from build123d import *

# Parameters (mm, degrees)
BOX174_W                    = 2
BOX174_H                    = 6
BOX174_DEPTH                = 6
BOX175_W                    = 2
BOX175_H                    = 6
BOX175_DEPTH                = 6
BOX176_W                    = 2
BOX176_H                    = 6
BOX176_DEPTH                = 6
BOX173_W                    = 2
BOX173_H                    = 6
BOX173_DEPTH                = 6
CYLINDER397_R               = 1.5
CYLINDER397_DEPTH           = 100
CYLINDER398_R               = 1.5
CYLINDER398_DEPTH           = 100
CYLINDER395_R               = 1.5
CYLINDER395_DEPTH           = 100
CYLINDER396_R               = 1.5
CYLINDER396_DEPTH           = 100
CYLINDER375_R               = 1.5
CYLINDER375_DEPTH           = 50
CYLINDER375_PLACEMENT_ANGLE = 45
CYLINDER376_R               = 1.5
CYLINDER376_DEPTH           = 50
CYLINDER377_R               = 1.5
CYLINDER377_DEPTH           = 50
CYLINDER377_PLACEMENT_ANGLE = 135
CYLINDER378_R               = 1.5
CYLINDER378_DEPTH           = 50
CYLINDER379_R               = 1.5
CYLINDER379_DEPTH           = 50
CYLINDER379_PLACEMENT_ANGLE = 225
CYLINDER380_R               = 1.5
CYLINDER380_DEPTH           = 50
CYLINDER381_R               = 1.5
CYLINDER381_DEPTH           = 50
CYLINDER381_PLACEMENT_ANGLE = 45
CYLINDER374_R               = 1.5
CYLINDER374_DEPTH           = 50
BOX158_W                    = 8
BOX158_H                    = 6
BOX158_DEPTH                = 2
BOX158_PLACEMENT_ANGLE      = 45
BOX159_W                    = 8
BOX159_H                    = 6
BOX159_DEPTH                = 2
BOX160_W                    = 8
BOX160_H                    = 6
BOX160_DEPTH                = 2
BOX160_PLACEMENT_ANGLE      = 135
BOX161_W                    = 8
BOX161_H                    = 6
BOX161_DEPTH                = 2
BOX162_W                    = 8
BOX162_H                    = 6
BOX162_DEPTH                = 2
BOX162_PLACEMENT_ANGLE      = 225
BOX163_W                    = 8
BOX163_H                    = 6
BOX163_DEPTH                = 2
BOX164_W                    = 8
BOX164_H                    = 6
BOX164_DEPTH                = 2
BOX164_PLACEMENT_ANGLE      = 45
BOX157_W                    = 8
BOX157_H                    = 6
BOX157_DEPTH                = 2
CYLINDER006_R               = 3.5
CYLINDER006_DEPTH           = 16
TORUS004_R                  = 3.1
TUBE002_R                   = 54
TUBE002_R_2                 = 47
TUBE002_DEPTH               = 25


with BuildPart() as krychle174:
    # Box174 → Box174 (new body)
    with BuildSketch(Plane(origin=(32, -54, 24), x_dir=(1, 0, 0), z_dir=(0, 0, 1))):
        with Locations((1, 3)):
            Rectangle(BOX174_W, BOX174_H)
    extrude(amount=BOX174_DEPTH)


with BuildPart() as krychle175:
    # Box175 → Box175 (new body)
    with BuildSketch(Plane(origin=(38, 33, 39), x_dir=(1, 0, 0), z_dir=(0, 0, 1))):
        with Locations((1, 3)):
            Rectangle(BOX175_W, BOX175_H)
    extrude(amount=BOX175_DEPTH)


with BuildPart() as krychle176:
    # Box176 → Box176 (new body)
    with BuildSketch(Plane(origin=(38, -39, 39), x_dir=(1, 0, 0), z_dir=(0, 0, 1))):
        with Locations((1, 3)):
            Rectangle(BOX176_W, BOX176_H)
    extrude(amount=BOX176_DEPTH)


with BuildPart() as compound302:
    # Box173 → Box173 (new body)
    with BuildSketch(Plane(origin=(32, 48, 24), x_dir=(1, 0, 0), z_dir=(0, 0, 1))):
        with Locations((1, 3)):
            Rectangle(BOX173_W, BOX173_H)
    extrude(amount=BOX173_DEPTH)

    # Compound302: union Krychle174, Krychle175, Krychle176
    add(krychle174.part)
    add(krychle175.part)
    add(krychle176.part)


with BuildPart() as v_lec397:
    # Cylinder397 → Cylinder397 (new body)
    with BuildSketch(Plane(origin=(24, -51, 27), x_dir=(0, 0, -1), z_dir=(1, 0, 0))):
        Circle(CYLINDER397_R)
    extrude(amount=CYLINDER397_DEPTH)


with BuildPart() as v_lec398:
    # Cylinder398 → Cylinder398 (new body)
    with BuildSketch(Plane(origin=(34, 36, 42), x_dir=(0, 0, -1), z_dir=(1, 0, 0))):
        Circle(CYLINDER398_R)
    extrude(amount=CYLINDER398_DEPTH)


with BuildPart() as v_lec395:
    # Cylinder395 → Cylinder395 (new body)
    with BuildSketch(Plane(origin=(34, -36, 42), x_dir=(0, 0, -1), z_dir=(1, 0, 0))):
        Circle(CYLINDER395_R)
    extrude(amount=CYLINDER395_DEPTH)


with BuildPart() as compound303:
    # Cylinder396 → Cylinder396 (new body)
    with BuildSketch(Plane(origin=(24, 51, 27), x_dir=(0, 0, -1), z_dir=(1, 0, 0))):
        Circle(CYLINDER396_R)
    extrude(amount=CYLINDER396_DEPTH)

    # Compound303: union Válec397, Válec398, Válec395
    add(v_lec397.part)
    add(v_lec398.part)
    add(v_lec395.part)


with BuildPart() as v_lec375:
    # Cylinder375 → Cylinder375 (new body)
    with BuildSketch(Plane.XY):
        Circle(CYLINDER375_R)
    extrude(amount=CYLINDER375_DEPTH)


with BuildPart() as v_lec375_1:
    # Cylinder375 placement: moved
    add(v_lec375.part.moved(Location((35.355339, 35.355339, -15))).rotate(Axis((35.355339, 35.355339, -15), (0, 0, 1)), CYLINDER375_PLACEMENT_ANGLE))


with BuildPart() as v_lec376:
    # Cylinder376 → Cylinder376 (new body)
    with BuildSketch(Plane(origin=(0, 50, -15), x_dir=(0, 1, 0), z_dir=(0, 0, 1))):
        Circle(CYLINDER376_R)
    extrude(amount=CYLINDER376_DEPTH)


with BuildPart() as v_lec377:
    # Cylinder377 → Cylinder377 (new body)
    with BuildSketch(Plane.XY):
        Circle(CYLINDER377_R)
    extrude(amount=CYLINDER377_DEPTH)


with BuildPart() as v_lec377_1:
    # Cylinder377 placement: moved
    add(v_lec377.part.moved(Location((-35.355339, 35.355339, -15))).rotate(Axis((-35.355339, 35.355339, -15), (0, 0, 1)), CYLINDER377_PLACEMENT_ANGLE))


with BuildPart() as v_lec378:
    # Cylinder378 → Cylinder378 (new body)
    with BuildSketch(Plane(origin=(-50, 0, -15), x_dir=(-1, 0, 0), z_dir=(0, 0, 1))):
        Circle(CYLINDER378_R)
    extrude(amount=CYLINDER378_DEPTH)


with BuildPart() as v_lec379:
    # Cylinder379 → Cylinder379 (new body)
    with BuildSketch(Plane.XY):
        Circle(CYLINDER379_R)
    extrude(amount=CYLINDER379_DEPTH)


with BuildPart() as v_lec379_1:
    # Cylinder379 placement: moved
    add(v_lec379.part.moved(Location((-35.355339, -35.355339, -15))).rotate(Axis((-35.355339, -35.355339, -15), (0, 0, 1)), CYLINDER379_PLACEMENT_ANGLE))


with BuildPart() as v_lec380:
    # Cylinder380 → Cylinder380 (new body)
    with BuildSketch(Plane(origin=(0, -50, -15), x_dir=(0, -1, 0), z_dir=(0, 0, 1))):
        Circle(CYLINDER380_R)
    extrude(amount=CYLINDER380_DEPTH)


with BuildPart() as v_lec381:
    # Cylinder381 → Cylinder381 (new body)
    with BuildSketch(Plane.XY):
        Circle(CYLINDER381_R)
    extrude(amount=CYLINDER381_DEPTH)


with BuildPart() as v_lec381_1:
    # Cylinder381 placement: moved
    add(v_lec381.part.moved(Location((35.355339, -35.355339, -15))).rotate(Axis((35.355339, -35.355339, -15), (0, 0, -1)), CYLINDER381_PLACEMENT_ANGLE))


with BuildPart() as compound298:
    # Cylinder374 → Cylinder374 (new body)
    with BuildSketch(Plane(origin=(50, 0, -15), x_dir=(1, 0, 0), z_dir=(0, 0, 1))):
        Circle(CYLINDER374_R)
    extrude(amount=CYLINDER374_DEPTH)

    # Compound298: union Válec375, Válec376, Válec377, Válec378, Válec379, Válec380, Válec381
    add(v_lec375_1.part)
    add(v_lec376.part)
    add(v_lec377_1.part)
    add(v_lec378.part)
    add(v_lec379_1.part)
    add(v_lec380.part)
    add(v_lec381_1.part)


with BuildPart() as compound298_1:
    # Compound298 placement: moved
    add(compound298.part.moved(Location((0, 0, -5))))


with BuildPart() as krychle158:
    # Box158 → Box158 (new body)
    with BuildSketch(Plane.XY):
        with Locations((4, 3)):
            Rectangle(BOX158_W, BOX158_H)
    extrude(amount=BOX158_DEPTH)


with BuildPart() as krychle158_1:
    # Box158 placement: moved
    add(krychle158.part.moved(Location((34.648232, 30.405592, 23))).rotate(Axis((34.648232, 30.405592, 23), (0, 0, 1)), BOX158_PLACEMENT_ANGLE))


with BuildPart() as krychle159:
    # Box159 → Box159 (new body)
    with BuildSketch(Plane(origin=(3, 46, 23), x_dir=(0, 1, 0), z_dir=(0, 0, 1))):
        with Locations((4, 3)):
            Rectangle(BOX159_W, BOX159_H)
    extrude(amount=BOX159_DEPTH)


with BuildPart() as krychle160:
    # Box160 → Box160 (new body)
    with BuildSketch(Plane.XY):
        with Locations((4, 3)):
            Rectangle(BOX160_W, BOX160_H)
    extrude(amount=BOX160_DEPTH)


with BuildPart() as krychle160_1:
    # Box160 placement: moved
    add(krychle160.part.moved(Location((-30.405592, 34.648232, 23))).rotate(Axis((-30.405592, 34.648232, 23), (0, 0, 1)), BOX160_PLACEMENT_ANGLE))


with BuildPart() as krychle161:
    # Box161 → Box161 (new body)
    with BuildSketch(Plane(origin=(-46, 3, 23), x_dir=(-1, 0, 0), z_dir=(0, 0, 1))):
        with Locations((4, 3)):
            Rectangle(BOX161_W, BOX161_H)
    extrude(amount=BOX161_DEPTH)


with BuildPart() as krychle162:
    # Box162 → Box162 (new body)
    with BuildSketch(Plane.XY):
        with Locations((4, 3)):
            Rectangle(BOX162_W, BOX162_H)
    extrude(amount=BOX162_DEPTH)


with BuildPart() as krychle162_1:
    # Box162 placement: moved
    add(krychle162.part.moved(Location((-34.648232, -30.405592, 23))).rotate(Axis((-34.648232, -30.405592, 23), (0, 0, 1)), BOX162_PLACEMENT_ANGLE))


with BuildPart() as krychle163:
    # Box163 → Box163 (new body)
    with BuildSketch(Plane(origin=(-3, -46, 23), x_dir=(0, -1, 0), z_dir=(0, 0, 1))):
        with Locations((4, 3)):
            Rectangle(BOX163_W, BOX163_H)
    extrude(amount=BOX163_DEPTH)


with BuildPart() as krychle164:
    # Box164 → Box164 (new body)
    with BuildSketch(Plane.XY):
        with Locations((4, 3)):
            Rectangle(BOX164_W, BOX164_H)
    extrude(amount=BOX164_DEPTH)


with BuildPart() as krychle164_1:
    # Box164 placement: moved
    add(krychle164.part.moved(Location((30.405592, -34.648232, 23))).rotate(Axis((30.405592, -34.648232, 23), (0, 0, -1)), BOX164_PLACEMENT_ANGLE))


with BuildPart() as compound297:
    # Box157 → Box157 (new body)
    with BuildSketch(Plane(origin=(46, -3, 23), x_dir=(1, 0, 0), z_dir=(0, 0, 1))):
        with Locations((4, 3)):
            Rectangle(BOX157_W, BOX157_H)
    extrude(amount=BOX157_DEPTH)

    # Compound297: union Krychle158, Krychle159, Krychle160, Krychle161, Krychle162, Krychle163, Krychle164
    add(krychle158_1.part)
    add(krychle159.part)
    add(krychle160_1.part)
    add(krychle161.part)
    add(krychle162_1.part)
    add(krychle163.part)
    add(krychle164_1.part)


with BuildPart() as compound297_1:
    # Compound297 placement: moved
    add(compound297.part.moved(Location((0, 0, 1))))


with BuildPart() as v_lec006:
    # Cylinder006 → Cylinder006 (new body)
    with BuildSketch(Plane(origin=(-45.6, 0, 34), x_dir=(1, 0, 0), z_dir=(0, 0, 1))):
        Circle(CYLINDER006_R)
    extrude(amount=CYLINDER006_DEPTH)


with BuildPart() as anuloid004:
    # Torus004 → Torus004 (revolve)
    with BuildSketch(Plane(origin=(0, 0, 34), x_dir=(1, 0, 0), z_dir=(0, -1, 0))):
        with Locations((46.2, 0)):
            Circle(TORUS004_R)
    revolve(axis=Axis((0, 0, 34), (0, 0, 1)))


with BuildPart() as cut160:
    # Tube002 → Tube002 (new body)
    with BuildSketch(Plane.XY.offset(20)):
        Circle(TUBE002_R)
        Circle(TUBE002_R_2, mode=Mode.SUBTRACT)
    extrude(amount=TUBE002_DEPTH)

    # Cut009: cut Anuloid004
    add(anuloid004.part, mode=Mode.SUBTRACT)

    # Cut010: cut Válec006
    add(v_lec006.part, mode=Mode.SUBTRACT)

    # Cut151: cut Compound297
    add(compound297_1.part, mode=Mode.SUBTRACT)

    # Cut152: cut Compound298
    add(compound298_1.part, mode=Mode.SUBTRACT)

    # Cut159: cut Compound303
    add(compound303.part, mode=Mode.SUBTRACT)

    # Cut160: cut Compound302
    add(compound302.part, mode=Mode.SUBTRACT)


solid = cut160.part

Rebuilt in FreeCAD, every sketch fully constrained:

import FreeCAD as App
import Part
import Sketcher

V = App.Vector
Q = App.Units.Quantity

doc = App.newDocument("Part")
body = doc.addObject("PartDesign::Body", "Body")

sketch1 = body.newObject("Sketcher::SketchObject", "Sketch")
sketch1.AttachmentSupport = (doc.getObject("XY_Plane"), [""])
sketch1.MapMode = "FlatFace"
sketch1.AttachmentOffset = App.Placement(V(0, 0, 24), App.Rotation())
sketch1.addGeometry(Part.LineSegment(V(32, -48, 0), V(32, -54, 0)), False)
sketch1.addGeometry(Part.LineSegment(V(32, -54, 0), V(34, -54, 0)), False)
sketch1.addGeometry(Part.LineSegment(V(34, -54, 0), V(34, -48, 0)), False)
sketch1.addGeometry(Part.LineSegment(V(34, -48, 0), V(32, -48, 0)), False)
sketch1.addConstraint(Sketcher.Constraint("Coincident", 0, 2, 1, 1))
sketch1.addConstraint(Sketcher.Constraint("Coincident", 1, 2, 2, 1))
sketch1.addConstraint(Sketcher.Constraint("Coincident", 2, 2, 3, 1))
sketch1.addConstraint(Sketcher.Constraint("Coincident", 3, 2, 0, 1))
sketch1.addConstraint(Sketcher.Constraint("Vertical", 0))
sketch1.addConstraint(Sketcher.Constraint("Horizontal", 1))
sketch1.addConstraint(Sketcher.Constraint("Vertical", 2))
sketch1.addConstraint(Sketcher.Constraint("Horizontal", 3))
sketch1.addConstraint(Sketcher.Constraint("DistanceX", 1, 1, 1, 2, Q("2 mm")))
sketch1.addConstraint(Sketcher.Constraint("DistanceY", 0, 2, 0, 1, Q("6 mm")))
sketch1.addConstraint(Sketcher.Constraint("DistanceX", -1, 1, 0, 2, Q("32 mm")))
sketch1.addConstraint(Sketcher.Constraint("DistanceY", 0, 2, -1, 1, Q("54 mm")))
pad1 = body.newObject("PartDesign::Pad", "Pad")
pad1.Profile = sketch1
pad1.Length = 6
body2 = doc.addObject("PartDesign::Body", "Body001")

sketch2 = body2.newObject("Sketcher::SketchObject", "Sketch001")
sketch2.AttachmentSupport = (doc.getObject("XY_Plane001"), [""])
sketch2.MapMode = "FlatFace"
sketch2.AttachmentOffset = App.Placement(V(0, 0, 39), App.Rotation())
sketch2.addGeometry(Part.LineSegment(V(38, 39, 0), V(38, 33, 0)), False)
sketch2.addGeometry(Part.LineSegment(V(38, 33, 0), V(40, 33, 0)), False)
sketch2.addGeometry(Part.LineSegment(V(40, 33, 0), V(40, 39, 0)), False)
sketch2.addGeometry(Part.LineSegment(V(40, 39, 0), V(38, 39, 0)), False)
sketch2.addConstraint(Sketcher.Constraint("Coincident", 0, 2, 1, 1))
sketch2.addConstraint(Sketcher.Constraint("Coincident", 1, 2, 2, 1))
sketch2.addConstraint(Sketcher.Constraint("Coincident", 2, 2, 3, 1))
sketch2.addConstraint(Sketcher.Constraint("Coincident", 3, 2, 0, 1))
sketch2.addConstraint(Sketcher.Constraint("Vertical", 0))
sketch2.addConstraint(Sketcher.Constraint("Horizontal", 1))
sketch2.addConstraint(Sketcher.Constraint("Vertical", 2))
sketch2.addConstraint(Sketcher.Constraint("Horizontal", 3))
sketch2.addConstraint(Sketcher.Constraint("DistanceX", 1, 1, 1, 2, Q("2 mm")))
sketch2.addConstraint(Sketcher.Constraint("DistanceY", 0, 2, 0, 1, Q("6 mm")))
sketch2.addConstraint(Sketcher.Constraint("DistanceX", -1, 1, 0, 2, Q("38 mm")))
sketch2.addConstraint(Sketcher.Constraint("DistanceY", -1, 1, 0, 2, Q("33 mm")))
pad2 = body2.newObject("PartDesign::Pad", "Pad001")
pad2.Profile = sketch2
pad2.Length = 6
body3 = doc.addObject("PartDesign::Body", "Body002")

sketch3 = body3.newObject("Sketcher::SketchObject", "Sketch002")
sketch3.AttachmentSupport = (doc.getObject("XY_Plane002"), [""])
sketch3.MapMode = "FlatFace"
sketch3.AttachmentOffset = App.Placement(V(0, 0, 39), App.Rotation())
sketch3.addGeometry(Part.LineSegment(V(38, -33, 0), V(38, -39, 0)), False)
sketch3.addGeometry(Part.LineSegment(V(38, -39, 0), V(40, -39, 0)), False)
sketch3.addGeometry(Part.LineSegment(V(40, -39, 0), V(40, -33, 0)), False)
sketch3.addGeometry(Part.LineSegment(V(40, -33, 0), V(38, -33, 0)), False)
sketch3.addConstraint(Sketcher.Constraint("Coincident", 0, 2, 1, 1))
sketch3.addConstraint(Sketcher.Constraint("Coincident", 1, 2, 2, 1))
sketch3.addConstraint(Sketcher.Constraint("Coincident", 2, 2, 3, 1))
sketch3.addConstraint(Sketcher.Constraint("Coincident", 3, 2, 0, 1))
sketch3.addConstraint(Sketcher.Constraint("Vertical", 0))
sketch3.addConstraint(Sketcher.Constraint("Horizontal", 1))
sketch3.addConstraint(Sketcher.Constraint("Vertical", 2))
sketch3.addConstraint(Sketcher.Constraint("Horizontal", 3))
sketch3.addConstraint(Sketcher.Constraint("DistanceX", 1, 1, 1, 2, Q("2 mm")))
sketch3.addConstraint(Sketcher.Constraint("DistanceY", 0, 2, 0, 1, Q("6 mm")))
sketch3.addConstraint(Sketcher.Constraint("DistanceX", -1, 1, 0, 2, Q("38 mm")))
sketch3.addConstraint(Sketcher.Constraint("DistanceY", 0, 2, -1, 1, Q("39 mm")))
pad3 = body3.newObject("PartDesign::Pad", "Pad002")
pad3.Profile = sketch3
pad3.Length = 6
body4 = doc.addObject("PartDesign::Body", "Body003")
body4.AllowCompound = True

sketch4 = body4.newObject("Sketcher::SketchObject", "Sketch003")
sketch4.AttachmentSupport = (doc.getObject("XY_Plane003"), [""])
sketch4.MapMode = "FlatFace"
sketch4.AttachmentOffset = App.Placement(V(0, 0, 24), App.Rotation())
sketch4.addGeometry(Part.LineSegment(V(32, 54, 0), V(32, 48, 0)), False)
sketch4.addGeometry(Part.LineSegment(V(32, 48, 0), V(34, 48, 0)), False)
sketch4.addGeometry(Part.LineSegment(V(34, 48, 0), V(34, 54, 0)), False)
sketch4.addGeometry(Part.LineSegment(V(34, 54, 0), V(32, 54, 0)), False)
sketch4.addConstraint(Sketcher.Constraint("Coincident", 0, 2, 1, 1))
sketch4.addConstraint(Sketcher.Constraint("Coincident", 1, 2, 2, 1))
sketch4.addConstraint(Sketcher.Constraint("Coincident", 2, 2, 3, 1))
sketch4.addConstraint(Sketcher.Constraint("Coincident", 3, 2, 0, 1))
sketch4.addConstraint(Sketcher.Constraint("Vertical", 0))
sketch4.addConstraint(Sketcher.Constraint("Horizontal", 1))
sketch4.addConstraint(Sketcher.Constraint("Vertical", 2))
sketch4.addConstraint(Sketcher.Constraint("Horizontal", 3))
sketch4.addConstraint(Sketcher.Constraint("DistanceX", 1, 1, 1, 2, Q("2 mm")))
sketch4.addConstraint(Sketcher.Constraint("DistanceY", 0, 2, 0, 1, Q("6 mm")))
sketch4.addConstraint(Sketcher.Constraint("DistanceX", -1, 1, 0, 2, Q("32 mm")))
sketch4.addConstraint(Sketcher.Constraint("DistanceY", -1, 1, 0, 2, Q("48 mm")))
pad4 = body4.newObject("PartDesign::Pad", "Pad003")
pad4.Profile = sketch4
pad4.Length = 6
doc.recompute()

boolean = body4.newObject("PartDesign::Boolean", "Boolean")
boolean.Type = "Fuse"
boolean.addObjects([body])
doc.recompute()

boolean2 = body4.newObject("PartDesign::Boolean", "Boolean001")
boolean2.Type = "Fuse"
boolean2.addObjects([body2])
doc.recompute()

boolean3 = body4.newObject("PartDesign::Boolean", "Boolean002")
boolean3.Type = "Fuse"
boolean3.addObjects([body3])
body5 = doc.addObject("PartDesign::Body", "Body004")

sketch5 = body5.newObject("Sketcher::SketchObject", "Sketch004")
sketch5.AttachmentSupport = (doc.getObject("YZ_Plane004"), [""])
sketch5.MapMode = "FlatFace"
sketch5.AttachmentOffset = App.Placement(V(0, 0, 24), App.Rotation())
sketch5.addGeometry(Part.Circle(V(-51, 27, 0), V(0, 0, 1), 1.5), False)
sketch5.addConstraint(Sketcher.Constraint("Diameter", 0, Q("3 mm")))
sketch5.addConstraint(Sketcher.Constraint("DistanceX", 0, 3, -1, 1, Q("51 mm")))
sketch5.addConstraint(Sketcher.Constraint("DistanceY", -1, 1, 0, 3, Q("27 mm")))
pad5 = body5.newObject("PartDesign::Pad", "Pad004")
pad5.Profile = sketch5
pad5.Length = 100
body6 = doc.addObject("PartDesign::Body", "Body005")

sketch6 = body6.newObject("Sketcher::SketchObject", "Sketch005")
sketch6.AttachmentSupport = (doc.getObject("YZ_Plane005"), [""])
sketch6.MapMode = "FlatFace"
sketch6.AttachmentOffset = App.Placement(V(0, 0, 34), App.Rotation())
sketch6.addGeometry(Part.Circle(V(36, 42, 0), V(0, 0, 1), 1.5), False)
sketch6.addConstraint(Sketcher.Constraint("Diameter", 0, Q("3 mm")))
sketch6.addConstraint(Sketcher.Constraint("DistanceX", -1, 1, 0, 3, Q("36 mm")))
sketch6.addConstraint(Sketcher.Constraint("DistanceY", -1, 1, 0, 3, Q("42 mm")))
pad6 = body6.newObject("PartDesign::Pad", "Pad005")
pad6.Profile = sketch6
pad6.Length = 100
body7 = doc.addObject("PartDesign::Body", "Body006")

sketch7 = body7.newObject("Sketcher::SketchObject", "Sketch006")
sketch7.AttachmentSupport = (doc.getObject("YZ_Plane006"), [""])
sketch7.MapMode = "FlatFace"
sketch7.AttachmentOffset = App.Placement(V(0, 0, 34), App.Rotation())
sketch7.addGeometry(Part.Circle(V(-36, 42, 0), V(0, 0, 1), 1.5), False)
sketch7.addConstraint(Sketcher.Constraint("Diameter", 0, Q("3 mm")))
sketch7.addConstraint(Sketcher.Constraint("DistanceX", 0, 3, -1, 1, Q("36 mm")))
sketch7.addConstraint(Sketcher.Constraint("DistanceY", -1, 1, 0, 3, Q("42 mm")))
pad7 = body7.newObject("PartDesign::Pad", "Pad006")
pad7.Profile = sketch7
pad7.Length = 100
body8 = doc.addObject("PartDesign::Body", "Body007")
body8.AllowCompound = True

sketch8 = body8.newObject("Sketcher::SketchObject", "Sketch007")
sketch8.AttachmentSupport = (doc.getObject("YZ_Plane007"), [""])
sketch8.MapMode = "FlatFace"
sketch8.AttachmentOffset = App.Placement(V(0, 0, 24), App.Rotation())
sketch8.addGeometry(Part.Circle(V(51, 27, 0), V(0, 0, 1), 1.5), False)
sketch8.addConstraint(Sketcher.Constraint("Diameter", 0, Q("3 mm")))
sketch8.addConstraint(Sketcher.Constraint("DistanceX", -1, 1, 0, 3, Q("51 mm")))
sketch8.addConstraint(Sketcher.Constraint("DistanceY", -1, 1, 0, 3, Q("27 mm")))
pad8 = body8.newObject("PartDesign::Pad", "Pad007")
pad8.Profile = sketch8
pad8.Length = 100
doc.recompute()

boolean4 = body8.newObject("PartDesign::Boolean", "Boolean003")
boolean4.Type = "Fuse"
boolean4.addObjects([body5])
doc.recompute()

boolean5 = body8.newObject("PartDesign::Boolean", "Boolean004")
boolean5.Type = "Fuse"
boolean5.addObjects([body6])
doc.recompute()

boolean6 = body8.newObject("PartDesign::Boolean", "Boolean005")
boolean6.Type = "Fuse"
boolean6.addObjects([body7])
body9 = doc.addObject("PartDesign::Body", "Body008")

sketch9 = body9.newObject("Sketcher::SketchObject", "Sketch008")
sketch9.AttachmentSupport = (doc.getObject("XY_Plane008"), [""])
sketch9.MapMode = "FlatFace"
sketch9.addGeometry(Part.Circle(V(0, 0, 0), V(0, 0, 1), 1.5), False)
sketch9.addConstraint(Sketcher.Constraint("Coincident", 0, 3, -1, 1))
sketch9.addConstraint(Sketcher.Constraint("Diameter", 0, Q("3 mm")))
pad9 = body9.newObject("PartDesign::Pad", "Pad008")
pad9.Profile = sketch9
pad9.Length = 50
body10 = doc.addObject("PartDesign::Body", "Body009")
doc.recompute()

body9.Placement = App.Placement(V(35.355339, 35.355339, -15), App.Rotation(V(0, 0, 1), 45))
boolean7 = body10.newObject("PartDesign::Boolean", "Boolean006")
boolean7.Type = "Fuse"
boolean7.addObjects([body9])
body11 = doc.addObject("PartDesign::Body", "Body010")

sketch10 = body11.newObject("Sketcher::SketchObject", "Sketch009")
sketch10.AttachmentSupport = (doc.getObject("XY_Plane010"), [""])
sketch10.MapMode = "FlatFace"
sketch10.AttachmentOffset = App.Placement(V(0, 0, -15), App.Rotation())
sketch10.addGeometry(Part.Circle(V(0, 50, 0), V(0, 0, 1), 1.5), False)
sketch10.addConstraint(Sketcher.Constraint("PointOnObject", 0, 3, -2))
sketch10.addConstraint(Sketcher.Constraint("Diameter", 0, Q("3 mm")))
sketch10.addConstraint(Sketcher.Constraint("DistanceY", -1, 1, 0, 3, Q("50 mm")))
pad10 = body11.newObject("PartDesign::Pad", "Pad009")
pad10.Profile = sketch10
pad10.Length = 50
body12 = doc.addObject("PartDesign::Body", "Body011")

sketch11 = body12.newObject("Sketcher::SketchObject", "Sketch010")
sketch11.AttachmentSupport = (doc.getObject("XY_Plane011"), [""])
sketch11.MapMode = "FlatFace"
sketch11.addGeometry(Part.Circle(V(0, 0, 0), V(0, 0, 1), 1.5), False)
sketch11.addConstraint(Sketcher.Constraint("Coincident", 0, 3, -1, 1))
sketch11.addConstraint(Sketcher.Constraint("Diameter", 0, Q("3 mm")))
pad11 = body12.newObject("PartDesign::Pad", "Pad010")
pad11.Profile = sketch11
pad11.Length = 50
body13 = doc.addObject("PartDesign::Body", "Body012")
doc.recompute()

body12.Placement = App.Placement(V(-35.355339, 35.355339, -15), App.Rotation(V(0, 0, 1), 135))
boolean8 = body13.newObject("PartDesign::Boolean", "Boolean007")
boolean8.Type = "Fuse"
boolean8.addObjects([body12])
body14 = doc.addObject("PartDesign::Body", "Body013")

sketch12 = body14.newObject("Sketcher::SketchObject", "Sketch011")
sketch12.AttachmentSupport = (doc.getObject("XY_Plane013"), [""])
sketch12.MapMode = "FlatFace"
sketch12.AttachmentOffset = App.Placement(V(0, 0, -15), App.Rotation())
sketch12.addGeometry(Part.Circle(V(-50, 0, 0), V(0, 0, 1), 1.5), False)
sketch12.addConstraint(Sketcher.Constraint("PointOnObject", 0, 3, -1))
sketch12.addConstraint(Sketcher.Constraint("Diameter", 0, Q("3 mm")))
sketch12.addConstraint(Sketcher.Constraint("DistanceX", 0, 3, -1, 1, Q("50 mm")))
pad12 = body14.newObject("PartDesign::Pad", "Pad011")
pad12.Profile = sketch12
pad12.Length = 50
body15 = doc.addObject("PartDesign::Body", "Body014")

sketch13 = body15.newObject("Sketcher::SketchObject", "Sketch012")
sketch13.AttachmentSupport = (doc.getObject("XY_Plane014"), [""])
sketch13.MapMode = "FlatFace"
sketch13.addGeometry(Part.Circle(V(0, 0, 0), V(0, 0, 1), 1.5), False)
sketch13.addConstraint(Sketcher.Constraint("Coincident", 0, 3, -1, 1))
sketch13.addConstraint(Sketcher.Constraint("Diameter", 0, Q("3 mm")))
pad13 = body15.newObject("PartDesign::Pad", "Pad012")
pad13.Profile = sketch13
pad13.Length = 50
body16 = doc.addObject("PartDesign::Body", "Body015")
doc.recompute()

body15.Placement = App.Placement(V(-35.355339, -35.355339, -15), App.Rotation(V(0, 0, 1), 225))
boolean9 = body16.newObject("PartDesign::Boolean", "Boolean008")
boolean9.Type = "Fuse"
boolean9.addObjects([body15])
body17 = doc.addObject("PartDesign::Body", "Body016")

sketch14 = body17.newObject("Sketcher::SketchObject", "Sketch013")
sketch14.AttachmentSupport = (doc.getObject("XY_Plane016"), [""])
sketch14.MapMode = "FlatFace"
sketch14.AttachmentOffset = App.Placement(V(0, 0, -15), App.Rotation())
sketch14.addGeometry(Part.Circle(V(0, -50, 0), V(0, 0, 1), 1.5), False)
sketch14.addConstraint(Sketcher.Constraint("PointOnObject", 0, 3, -2))
sketch14.addConstraint(Sketcher.Constraint("Diameter", 0, Q("3 mm")))
sketch14.addConstraint(Sketcher.Constraint("DistanceY", 0, 3, -1, 1, Q("50 mm")))
pad14 = body17.newObject("PartDesign::Pad", "Pad013")
pad14.Profile = sketch14
pad14.Length = 50
body18 = doc.addObject("PartDesign::Body", "Body017")

sketch15 = body18.newObject("Sketcher::SketchObject", "Sketch014")
sketch15.AttachmentSupport = (doc.getObject("XY_Plane017"), [""])
sketch15.MapMode = "FlatFace"
sketch15.addGeometry(Part.Circle(V(0, 0, 0), V(0, 0, 1), 1.5), False)
sketch15.addConstraint(Sketcher.Constraint("Coincident", 0, 3, -1, 1))
sketch15.addConstraint(Sketcher.Constraint("Diameter", 0, Q("3 mm")))
pad15 = body18.newObject("PartDesign::Pad", "Pad014")
pad15.Profile = sketch15
pad15.Length = 50
body19 = doc.addObject("PartDesign::Body", "Body018")
doc.recompute()

body18.Placement = App.Placement(V(35.355339, -35.355339, -15), App.Rotation(V(0, 0, -1), 45))
boolean10 = body19.newObject("PartDesign::Boolean", "Boolean009")
boolean10.Type = "Fuse"
boolean10.addObjects([body18])
body20 = doc.addObject("PartDesign::Body", "Body019")
body20.AllowCompound = True

sketch16 = body20.newObject("Sketcher::SketchObject", "Sketch015")
sketch16.AttachmentSupport = (doc.getObject("XY_Plane019"), [""])
sketch16.MapMode = "FlatFace"
sketch16.AttachmentOffset = App.Placement(V(0, 0, -15), App.Rotation())
sketch16.addGeometry(Part.Circle(V(50, 0, 0), V(0, 0, 1), 1.5), False)
sketch16.addConstraint(Sketcher.Constraint("PointOnObject", 0, 3, -1))
sketch16.addConstraint(Sketcher.Constraint("Diameter", 0, Q("3 mm")))
sketch16.addConstraint(Sketcher.Constraint("DistanceX", -1, 1, 0, 3, Q("50 mm")))
pad16 = body20.newObject("PartDesign::Pad", "Pad015")
pad16.Profile = sketch16
pad16.Length = 50
doc.recompute()

boolean11 = body20.newObject("PartDesign::Boolean", "Boolean010")
boolean11.Type = "Fuse"
boolean11.addObjects([body10])
doc.recompute()

boolean12 = body20.newObject("PartDesign::Boolean", "Boolean011")
boolean12.Type = "Fuse"
boolean12.addObjects([body11])
doc.recompute()

boolean13 = body20.newObject("PartDesign::Boolean", "Boolean012")
boolean13.Type = "Fuse"
boolean13.addObjects([body13])
doc.recompute()

boolean14 = body20.newObject("PartDesign::Boolean", "Boolean013")
boolean14.Type = "Fuse"
boolean14.addObjects([body14])
doc.recompute()

boolean15 = body20.newObject("PartDesign::Boolean", "Boolean014")
boolean15.Type = "Fuse"
boolean15.addObjects([body16])
doc.recompute()

boolean16 = body20.newObject("PartDesign::Boolean", "Boolean015")
boolean16.Type = "Fuse"
boolean16.addObjects([body17])
doc.recompute()

boolean17 = body20.newObject("PartDesign::Boolean", "Boolean016")
boolean17.Type = "Fuse"
boolean17.addObjects([body19])
body21 = doc.addObject("PartDesign::Body", "Body020")
body21.AllowCompound = True
doc.recompute()

body20.Placement = App.Placement(V(0, 0, -5), App.Rotation(V(0, 0, 1), 0))
boolean18 = body21.newObject("PartDesign::Boolean", "Boolean017")
boolean18.Type = "Fuse"
boolean18.addObjects([body20])
body22 = doc.addObject("PartDesign::Body", "Body021")

sketch17 = body22.newObject("Sketcher::SketchObject", "Sketch016")
sketch17.AttachmentSupport = (doc.getObject("XY_Plane021"), [""])
sketch17.MapMode = "FlatFace"
sketch17.addGeometry(Part.LineSegment(V(0, 6, 0), V(0, 0, 0)), False)
sketch17.addGeometry(Part.LineSegment(V(0, 0, 0), V(8, 0, 0)), False)
sketch17.addGeometry(Part.LineSegment(V(8, 0, 0), V(8, 6, 0)), False)
sketch17.addGeometry(Part.LineSegment(V(8, 6, 0), V(0, 6, 0)), False)
sketch17.addConstraint(Sketcher.Constraint("Coincident", 0, 2, 1, 1))
sketch17.addConstraint(Sketcher.Constraint("Coincident", 1, 2, 2, 1))
sketch17.addConstraint(Sketcher.Constraint("Coincident", 2, 2, 3, 1))
sketch17.addConstraint(Sketcher.Constraint("Coincident", 3, 2, 0, 1))
sketch17.addConstraint(Sketcher.Constraint("Vertical", 0))
sketch17.addConstraint(Sketcher.Constraint("Horizontal", 1))
sketch17.addConstraint(Sketcher.Constraint("Vertical", 2))
sketch17.addConstraint(Sketcher.Constraint("Horizontal", 3))
sketch17.addConstraint(Sketcher.Constraint("Coincident", 0, 2, -1, 1))
sketch17.addConstraint(Sketcher.Constraint("DistanceX", 1, 1, 1, 2, Q("8 mm")))
sketch17.addConstraint(Sketcher.Constraint("DistanceY", 0, 2, 0, 1, Q("6 mm")))
pad17 = body22.newObject("PartDesign::Pad", "Pad016")
pad17.Profile = sketch17
pad17.Length = 2
body23 = doc.addObject("PartDesign::Body", "Body022")
doc.recompute()

body22.Placement = App.Placement(V(34.648232, 30.405592, 23), App.Rotation(V(0, 0, 1), 45))
boolean19 = body23.newObject("PartDesign::Boolean", "Boolean018")
boolean19.Type = "Fuse"
boolean19.addObjects([body22])
body24 = doc.addObject("PartDesign::Body", "Body023")

sketch18 = body24.newObject("Sketcher::SketchObject", "Sketch017")
sketch18.AttachmentSupport = (doc.getObject("XY_Plane023"), [""])
sketch18.MapMode = "FlatFace"
sketch18.AttachmentOffset = App.Placement(V(0, 0, 23), App.Rotation())
sketch18.addGeometry(Part.LineSegment(V(-3, 46, 0), V(3, 46, 0)), False)
sketch18.addGeometry(Part.LineSegment(V(3, 46, 0), V(3, 54, 0)), False)
sketch18.addGeometry(Part.LineSegment(V(3, 54, 0), V(-3, 54, 0)), False)
sketch18.addGeometry(Part.LineSegment(V(-3, 54, 0), V(-3, 46, 0)), False)
sketch18.addConstraint(Sketcher.Constraint("Coincident", 0, 2, 1, 1))
sketch18.addConstraint(Sketcher.Constraint("Coincident", 1, 2, 2, 1))
sketch18.addConstraint(Sketcher.Constraint("Coincident", 2, 2, 3, 1))
sketch18.addConstraint(Sketcher.Constraint("Coincident", 3, 2, 0, 1))
sketch18.addConstraint(Sketcher.Constraint("Horizontal", 0))
sketch18.addConstraint(Sketcher.Constraint("Vertical", 1))
sketch18.addConstraint(Sketcher.Constraint("Horizontal", 2))
sketch18.addConstraint(Sketcher.Constraint("Vertical", 3))
sketch18.addConstraint(Sketcher.Constraint("DistanceX", 0, 1, 0, 2, Q("6 mm")))
sketch18.addConstraint(Sketcher.Constraint("DistanceY", 1, 1, 1, 2, Q("8 mm")))
sketch18.addConstraint(Sketcher.Constraint("DistanceX", -1, 1, 0, 2, Q("3 mm")))
sketch18.addConstraint(Sketcher.Constraint("DistanceY", -1, 1, 0, 2, Q("46 mm")))
pad18 = body24.newObject("PartDesign::Pad", "Pad017")
pad18.Profile = sketch18
pad18.Length = 2
body25 = doc.addObject("PartDesign::Body", "Body024")

sketch19 = body25.newObject("Sketcher::SketchObject", "Sketch018")
sketch19.AttachmentSupport = (doc.getObject("XY_Plane024"), [""])
sketch19.MapMode = "FlatFace"
sketch19.addGeometry(Part.LineSegment(V(0, 6, 0), V(0, 0, 0)), False)
sketch19.addGeometry(Part.LineSegment(V(0, 0, 0), V(8, 0, 0)), False)
sketch19.addGeometry(Part.LineSegment(V(8, 0, 0), V(8, 6, 0)), False)
sketch19.addGeometry(Part.LineSegment(V(8, 6, 0), V(0, 6, 0)), False)
sketch19.addConstraint(Sketcher.Constraint("Coincident", 0, 2, 1, 1))
sketch19.addConstraint(Sketcher.Constraint("Coincident", 1, 2, 2, 1))
sketch19.addConstraint(Sketcher.Constraint("Coincident", 2, 2, 3, 1))
sketch19.addConstraint(Sketcher.Constraint("Coincident", 3, 2, 0, 1))
sketch19.addConstraint(Sketcher.Constraint("Vertical", 0))
sketch19.addConstraint(Sketcher.Constraint("Horizontal", 1))
sketch19.addConstraint(Sketcher.Constraint("Vertical", 2))
sketch19.addConstraint(Sketcher.Constraint("Horizontal", 3))
sketch19.addConstraint(Sketcher.Constraint("Coincident", 0, 2, -1, 1))
sketch19.addConstraint(Sketcher.Constraint("DistanceX", 1, 1, 1, 2, Q("8 mm")))
sketch19.addConstraint(Sketcher.Constraint("DistanceY", 0, 2, 0, 1, Q("6 mm")))
pad19 = body25.newObject("PartDesign::Pad", "Pad018")
pad19.Profile = sketch19
pad19.Length = 2
body26 = doc.addObject("PartDesign::Body", "Body025")
doc.recompute()

body25.Placement = App.Placement(V(-30.405592, 34.648232, 23), App.Rotation(V(0, 0, 1), 135))
boolean20 = body26.newObject("PartDesign::Boolean", "Boolean019")
boolean20.Type = "Fuse"
boolean20.addObjects([body25])
body27 = doc.addObject("PartDesign::Body", "Body026")

sketch20 = body27.newObject("Sketcher::SketchObject", "Sketch019")
sketch20.AttachmentSupport = (doc.getObject("XY_Plane026"), [""])
sketch20.MapMode = "FlatFace"
sketch20.AttachmentOffset = App.Placement(V(0, 0, 23), App.Rotation())
sketch20.addGeometry(Part.LineSegment(V(-46, -3, 0), V(-46, 3, 0)), False)
sketch20.addGeometry(Part.LineSegment(V(-46, 3, 0), V(-54, 3, 0)), False)
sketch20.addGeometry(Part.LineSegment(V(-54, 3, 0), V(-54, -3, 0)), False)
sketch20.addGeometry(Part.LineSegment(V(-54, -3, 0), V(-46, -3, 0)), False)
sketch20.addConstraint(Sketcher.Constraint("Coincident", 0, 2, 1, 1))
sketch20.addConstraint(Sketcher.Constraint("Coincident", 1, 2, 2, 1))
sketch20.addConstraint(Sketcher.Constraint("Coincident", 2, 2, 3, 1))
sketch20.addConstraint(Sketcher.Constraint("Coincident", 3, 2, 0, 1))
sketch20.addConstraint(Sketcher.Constraint("Vertical", 0))
sketch20.addConstraint(Sketcher.Constraint("Horizontal", 1))
sketch20.addConstraint(Sketcher.Constraint("Vertical", 2))
sketch20.addConstraint(Sketcher.Constraint("Horizontal", 3))
sketch20.addConstraint(Sketcher.Constraint("DistanceX", 1, 2, 1, 1, Q("8 mm")))
sketch20.addConstraint(Sketcher.Constraint("DistanceY", 0, 1, 0, 2, Q("6 mm")))
sketch20.addConstraint(Sketcher.Constraint("DistanceX", 0, 2, -1, 1, Q("46 mm")))
sketch20.addConstraint(Sketcher.Constraint("DistanceY", -1, 1, 0, 2, Q("3 mm")))
pad20 = body27.newObject("PartDesign::Pad", "Pad019")
pad20.Profile = sketch20
pad20.Length = 2
body28 = doc.addObject("PartDesign::Body", "Body027")

sketch21 = body28.newObject("Sketcher::SketchObject", "Sketch020")
sketch21.AttachmentSupport = (doc.getObject("XY_Plane027"), [""])
sketch21.MapMode = "FlatFace"
sketch21.addGeometry(Part.LineSegment(V(0, 6, 0), V(0, 0, 0)), False)
sketch21.addGeometry(Part.LineSegment(V(0, 0, 0), V(8, 0, 0)), False)
sketch21.addGeometry(Part.LineSegment(V(8, 0, 0), V(8, 6, 0)), False)
sketch21.addGeometry(Part.LineSegment(V(8, 6, 0), V(0, 6, 0)), False)
sketch21.addConstraint(Sketcher.Constraint("Coincident", 0, 2, 1, 1))
sketch21.addConstraint(Sketcher.Constraint("Coincident", 1, 2, 2, 1))
sketch21.addConstraint(Sketcher.Constraint("Coincident", 2, 2, 3, 1))
sketch21.addConstraint(Sketcher.Constraint("Coincident", 3, 2, 0, 1))
sketch21.addConstraint(Sketcher.Constraint("Vertical", 0))
sketch21.addConstraint(Sketcher.Constraint("Horizontal", 1))
sketch21.addConstraint(Sketcher.Constraint("Vertical", 2))
sketch21.addConstraint(Sketcher.Constraint("Horizontal", 3))
sketch21.addConstraint(Sketcher.Constraint("Coincident", 0, 2, -1, 1))
sketch21.addConstraint(Sketcher.Constraint("DistanceX", 1, 1, 1, 2, Q("8 mm")))
sketch21.addConstraint(Sketcher.Constraint("DistanceY", 0, 2, 0, 1, Q("6 mm")))
pad21 = body28.newObject("PartDesign::Pad", "Pad020")
pad21.Profile = sketch21
pad21.Length = 2
body29 = doc.addObject("PartDesign::Body", "Body028")
doc.recompute()

body28.Placement = App.Placement(V(-34.648232, -30.405592, 23), App.Rotation(V(0, 0, 1), 225))
boolean21 = body29.newObject("PartDesign::Boolean", "Boolean020")
boolean21.Type = "Fuse"
boolean21.addObjects([body28])
body30 = doc.addObject("PartDesign::Body", "Body029")

sketch22 = body30.newObject("Sketcher::SketchObject", "Sketch021")
sketch22.AttachmentSupport = (doc.getObject("XY_Plane029"), [""])
sketch22.MapMode = "FlatFace"
sketch22.AttachmentOffset = App.Placement(V(0, 0, 23), App.Rotation())
sketch22.addGeometry(Part.LineSegment(V(3, -46, 0), V(-3, -46, 0)), False)
sketch22.addGeometry(Part.LineSegment(V(-3, -46, 0), V(-3, -54, 0)), False)
sketch22.addGeometry(Part.LineSegment(V(-3, -54, 0), V(3, -54, 0)), False)
sketch22.addGeometry(Part.LineSegment(V(3, -54, 0), V(3, -46, 0)), False)
sketch22.addConstraint(Sketcher.Constraint("Coincident", 0, 2, 1, 1))
sketch22.addConstraint(Sketcher.Constraint("Coincident", 1, 2, 2, 1))
sketch22.addConstraint(Sketcher.Constraint("Coincident", 2, 2, 3, 1))
sketch22.addConstraint(Sketcher.Constraint("Coincident", 3, 2, 0, 1))
sketch22.addConstraint(Sketcher.Constraint("Horizontal", 0))
sketch22.addConstraint(Sketcher.Constraint("Vertical", 1))
sketch22.addConstraint(Sketcher.Constraint("Horizontal", 2))
sketch22.addConstraint(Sketcher.Constraint("Vertical", 3))
sketch22.addConstraint(Sketcher.Constraint("DistanceX", 0, 2, 0, 1, Q("6 mm")))
sketch22.addConstraint(Sketcher.Constraint("DistanceY", 1, 2, 1, 1, Q("8 mm")))
sketch22.addConstraint(Sketcher.Constraint("DistanceX", 0, 2, -1, 1, Q("3 mm")))
sketch22.addConstraint(Sketcher.Constraint("DistanceY", 0, 2, -1, 1, Q("46 mm")))
pad22 = body30.newObject("PartDesign::Pad", "Pad021")
pad22.Profile = sketch22
pad22.Length = 2
body31 = doc.addObject("PartDesign::Body", "Body030")

sketch23 = body31.newObject("Sketcher::SketchObject", "Sketch022")
sketch23.AttachmentSupport = (doc.getObject("XY_Plane030"), [""])
sketch23.MapMode = "FlatFace"
sketch23.addGeometry(Part.LineSegment(V(0, 6, 0), V(0, 0, 0)), False)
sketch23.addGeometry(Part.LineSegment(V(0, 0, 0), V(8, 0, 0)), False)
sketch23.addGeometry(Part.LineSegment(V(8, 0, 0), V(8, 6, 0)), False)
sketch23.addGeometry(Part.LineSegment(V(8, 6, 0), V(0, 6, 0)), False)
sketch23.addConstraint(Sketcher.Constraint("Coincident", 0, 2, 1, 1))
sketch23.addConstraint(Sketcher.Constraint("Coincident", 1, 2, 2, 1))
sketch23.addConstraint(Sketcher.Constraint("Coincident", 2, 2, 3, 1))
sketch23.addConstraint(Sketcher.Constraint("Coincident", 3, 2, 0, 1))
sketch23.addConstraint(Sketcher.Constraint("Vertical", 0))
sketch23.addConstraint(Sketcher.Constraint("Horizontal", 1))
sketch23.addConstraint(Sketcher.Constraint("Vertical", 2))
sketch23.addConstraint(Sketcher.Constraint("Horizontal", 3))
sketch23.addConstraint(Sketcher.Constraint("Coincident", 0, 2, -1, 1))
sketch23.addConstraint(Sketcher.Constraint("DistanceX", 1, 1, 1, 2, Q("8 mm")))
sketch23.addConstraint(Sketcher.Constraint("DistanceY", 0, 2, 0, 1, Q("6 mm")))
pad23 = body31.newObject("PartDesign::Pad", "Pad022")
pad23.Profile = sketch23
pad23.Length = 2
body32 = doc.addObject("PartDesign::Body", "Body031")
doc.recompute()

body31.Placement = App.Placement(V(30.405592, -34.648232, 23), App.Rotation(V(0, 0, -1), 45))
boolean22 = body32.newObject("PartDesign::Boolean", "Boolean021")
boolean22.Type = "Fuse"
boolean22.addObjects([body31])
body33 = doc.addObject("PartDesign::Body", "Body032")
body33.AllowCompound = True

sketch24 = body33.newObject("Sketcher::SketchObject", "Sketch023")
sketch24.AttachmentSupport = (doc.getObject("XY_Plane032"), [""])
sketch24.MapMode = "FlatFace"
sketch24.AttachmentOffset = App.Placement(V(0, 0, 23), App.Rotation())
sketch24.addGeometry(Part.LineSegment(V(46, 3, 0), V(46, -3, 0)), False)
sketch24.addGeometry(Part.LineSegment(V(46, -3, 0), V(54, -3, 0)), False)
sketch24.addGeometry(Part.LineSegment(V(54, -3, 0), V(54, 3, 0)), False)
sketch24.addGeometry(Part.LineSegment(V(54, 3, 0), V(46, 3, 0)), False)
sketch24.addConstraint(Sketcher.Constraint("Coincident", 0, 2, 1, 1))
sketch24.addConstraint(Sketcher.Constraint("Coincident", 1, 2, 2, 1))
sketch24.addConstraint(Sketcher.Constraint("Coincident", 2, 2, 3, 1))
sketch24.addConstraint(Sketcher.Constraint("Coincident", 3, 2, 0, 1))
sketch24.addConstraint(Sketcher.Constraint("Vertical", 0))
sketch24.addConstraint(Sketcher.Constraint("Horizontal", 1))
sketch24.addConstraint(Sketcher.Constraint("Vertical", 2))
sketch24.addConstraint(Sketcher.Constraint("Horizontal", 3))
sketch24.addConstraint(Sketcher.Constraint("DistanceX", 1, 1, 1, 2, Q("8 mm")))
sketch24.addConstraint(Sketcher.Constraint("DistanceY", 0, 2, 0, 1, Q("6 mm")))
sketch24.addConstraint(Sketcher.Constraint("DistanceX", -1, 1, 0, 2, Q("46 mm")))
sketch24.addConstraint(Sketcher.Constraint("DistanceY", 0, 2, -1, 1, Q("3 mm")))
pad24 = body33.newObject("PartDesign::Pad", "Pad023")
pad24.Profile = sketch24
pad24.Length = 2
doc.recompute()

boolean23 = body33.newObject("PartDesign::Boolean", "Boolean022")
boolean23.Type = "Fuse"
boolean23.addObjects([body23])
doc.recompute()

boolean24 = body33.newObject("PartDesign::Boolean", "Boolean023")
boolean24.Type = "Fuse"
boolean24.addObjects([body24])
doc.recompute()

boolean25 = body33.newObject("PartDesign::Boolean", "Boolean024")
boolean25.Type = "Fuse"
boolean25.addObjects([body26])
doc.recompute()

boolean26 = body33.newObject("PartDesign::Boolean", "Boolean025")
boolean26.Type = "Fuse"
boolean26.addObjects([body27])
doc.recompute()

boolean27 = body33.newObject("PartDesign::Boolean", "Boolean026")
boolean27.Type = "Fuse"
boolean27.addObjects([body29])
doc.recompute()

boolean28 = body33.newObject("PartDesign::Boolean", "Boolean027")
boolean28.Type = "Fuse"
boolean28.addObjects([body30])
doc.recompute()

boolean29 = body33.newObject("PartDesign::Boolean", "Boolean028")
boolean29.Type = "Fuse"
boolean29.addObjects([body32])
body34 = doc.addObject("PartDesign::Body", "Body033")
body34.AllowCompound = True
doc.recompute()

body33.Placement = App.Placement(V(0, 0, 1), App.Rotation(V(0, 0, 1), 0))
boolean30 = body34.newObject("PartDesign::Boolean", "Boolean029")
boolean30.Type = "Fuse"
boolean30.addObjects([body33])
body35 = doc.addObject("PartDesign::Body", "Body034")

sketch25 = body35.newObject("Sketcher::SketchObject", "Sketch024")
sketch25.AttachmentSupport = (doc.getObject("XY_Plane034"), [""])
sketch25.MapMode = "FlatFace"
sketch25.AttachmentOffset = App.Placement(V(0, 0, 34), App.Rotation())
sketch25.addGeometry(Part.Circle(V(-45.6, 0, 0), V(0, 0, 1), 3.5), False)
sketch25.addConstraint(Sketcher.Constraint("PointOnObject", 0, 3, -1))
sketch25.addConstraint(Sketcher.Constraint("Diameter", 0, Q("7 mm")))
sketch25.addConstraint(Sketcher.Constraint("DistanceX", 0, 3, -1, 1, Q("45.6 mm")))
pad25 = body35.newObject("PartDesign::Pad", "Pad024")
pad25.Profile = sketch25
pad25.Length = 16
body36 = doc.addObject("PartDesign::Body", "Body035")

sketch26 = body36.newObject("Sketcher::SketchObject", "Sketch025")
sketch26.AttachmentSupport = (doc.getObject("XZ_Plane035"), [""])
sketch26.MapMode = "FlatFace"
sketch26.addGeometry(Part.Circle(V(46.2, 34, 0), V(0, 0, 1), 3.1), False)
sketch26.addConstraint(Sketcher.Constraint("Diameter", 0, Q("6.2 mm")))
sketch26.addConstraint(Sketcher.Constraint("DistanceY", -1, 1, 0, 3, Q("34 mm")))
sketch26.addConstraint(Sketcher.Constraint("DistanceX", -1, 1, 0, 3, Q("46.2 mm")))
revolution = body36.newObject("PartDesign::Revolution", "Revolution")
revolution.Profile = sketch26
revolution.ReferenceAxis = (sketch26, ["V_Axis"])
revolution.Angle = 360
body37 = doc.addObject("PartDesign::Body", "Body036")

sketch27 = body37.newObject("Sketcher::SketchObject", "Sketch026")
sketch27.AttachmentSupport = (doc.getObject("XY_Plane036"), [""])
sketch27.MapMode = "FlatFace"
sketch27.AttachmentOffset = App.Placement(V(0, 0, 20), App.Rotation())
sketch27.addGeometry(Part.Circle(V(0, 0, 0), V(0, 0, 1), 54), False)
sketch27.addGeometry(Part.Circle(V(0, 0, 0), V(0, 0, 1), 47), False)
sketch27.addConstraint(Sketcher.Constraint("Coincident", 0, 3, -1, 1))
sketch27.addConstraint(Sketcher.Constraint("Coincident", 1, 3, -1, 1))
sketch27.addConstraint(Sketcher.Constraint("Diameter", 0, Q("108 mm")))
sketch27.addConstraint(Sketcher.Constraint("Diameter", 1, Q("94 mm")))
pad26 = body37.newObject("PartDesign::Pad", "Pad025")
pad26.Profile = sketch27
pad26.Length = 25
doc.recompute()

boolean31 = body37.newObject("PartDesign::Boolean", "Boolean030")
boolean31.Type = "Cut"
boolean31.addObjects([body36])
doc.recompute()

boolean32 = body37.newObject("PartDesign::Boolean", "Boolean031")
boolean32.Type = "Cut"
boolean32.addObjects([body35])
doc.recompute()

boolean33 = body37.newObject("PartDesign::Boolean", "Boolean032")
boolean33.Type = "Cut"
boolean33.addObjects([body34])
doc.recompute()

boolean34 = body37.newObject("PartDesign::Boolean", "Boolean033")
boolean34.Type = "Cut"
boolean34.addObjects([body21])
doc.recompute()

boolean35 = body37.newObject("PartDesign::Boolean", "Boolean034")
boolean35.Type = "Cut"
boolean35.addObjects([body8])
doc.recompute()

boolean36 = body37.newObject("PartDesign::Boolean", "Boolean035")
boolean36.Type = "Cut"
boolean36.addObjects([body4])

doc.recompute()
